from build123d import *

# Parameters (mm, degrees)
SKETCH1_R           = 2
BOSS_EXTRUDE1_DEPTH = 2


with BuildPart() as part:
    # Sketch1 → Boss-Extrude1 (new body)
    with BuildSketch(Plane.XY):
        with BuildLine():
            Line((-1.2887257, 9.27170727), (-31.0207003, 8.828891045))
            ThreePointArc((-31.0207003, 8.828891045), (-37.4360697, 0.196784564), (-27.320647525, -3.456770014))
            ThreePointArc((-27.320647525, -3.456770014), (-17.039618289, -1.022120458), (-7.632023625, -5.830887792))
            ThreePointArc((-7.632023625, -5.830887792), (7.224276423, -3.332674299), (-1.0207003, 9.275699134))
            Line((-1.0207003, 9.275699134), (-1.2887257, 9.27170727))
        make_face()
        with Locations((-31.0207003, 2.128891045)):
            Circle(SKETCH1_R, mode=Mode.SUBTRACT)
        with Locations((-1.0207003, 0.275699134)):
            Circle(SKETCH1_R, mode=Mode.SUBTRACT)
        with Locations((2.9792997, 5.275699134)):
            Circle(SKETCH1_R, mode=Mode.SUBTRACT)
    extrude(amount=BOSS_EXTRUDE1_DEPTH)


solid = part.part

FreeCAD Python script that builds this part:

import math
import FreeCAD as App
import Part
import Sketcher

doc = App.newDocument("Part")
body = doc.addObject("PartDesign::Body", "Body")

sketch1 = body.newObject("Sketcher::SketchObject", "Sketch")
sketch1.AttachmentSupport = (doc.getObject("XY_Plane"), [""])
sketch1.MapMode = "FlatFace"
sketch1.addGeometry([
    Part.LineSegment(App.Vector(-1.29, 9.27, 0), App.Vector(-31.02, 8.83, 0)),
    Part.ArcOfCircle(Part.Circle(App.Vector(-31.02, 2.13, 0), App.Vector(0, 0, 1), 6.7), math.radians(90), math.radians(304)),
    Part.ArcOfCircle(Part.Circle(App.Vector(-18.87, -16.21, 0), App.Vector(0, 0, 1), 15.3), math.radians(43), math.radians(124)),
    Part.ArcOfCircle(Part.Circle(App.Vector(-1.02, 0.28, 0), App.Vector(0, 0, 1), 9), math.radians(-137), math.radians(90)),
    Part.LineSegment(App.Vector(-1.02, 9.28, 0), App.Vector(-1.29, 9.27, 0)),
    Part.Circle(App.Vector(-31.02, 2.13, 0), App.Vector(0, 0, 1), 2),
    Part.Circle(App.Vector(-1.02, 0.28, 0), App.Vector(0, 0, 1), 2),
    Part.Circle(App.Vector(2.98, 5.28, 0), App.Vector(0, 0, 1), 2),
], False)
sketch1.addConstraint([
    Sketcher.Constraint("Coincident", 0, 2, 1, 1),
    Sketcher.Constraint("Tangent", 1, 2, 2, 2),
    Sketcher.Constraint("Tangent", 2, 1, 3, 1),
    Sketcher.Constraint("Coincident", 3, 2, 4, 1),
    Sketcher.Constraint("Coincident", 4, 2, 0, 1),
    Sketcher.Constraint("Coincident", 5, 3, 1, 3),
    Sketcher.Constraint("Coincident", 6, 3, 3, 3),
    Sketcher.Constraint("Equal", 5, 6),
    Sketcher.Constraint("Equal", 6, 7),
    Sketcher.Constraint("Parallel", 0, 4),
    Sketcher.Constraint("Vertical", 5, 3, 0, 2),
    Sketcher.Constraint("Vertical", 6, 3, 3, 2),
    Sketcher.Constraint("Diameter", 5, 4.0),
    Sketcher.Constraint("Radius", 3, 9.0),
    Sketcher.Constraint("Radius", 1, 6.7),
    Sketcher.Constraint("Radius", 2, 15.3),
    Sketcher.Constraint("DistanceX", 1, 3, 3, 3, 30.0),
    Sketcher.Constraint("DistanceX", 3, 3, 7, 3, 4.0),
    Sketcher.Constraint("DistanceY", 3, 3, 7, 3, 5.0),
    Sketcher.Constraint("DistanceX", 1, 3, -1, 1, 31.0207),
    Sketcher.Constraint("DistanceY", -1, 1, 3, 3, 0.275699),
    Sketcher.Constraint("Distance", 0, 29.735272),
    Sketcher.Constraint("DistanceY", -1, 1, 1, 3, 2.128891),
])
pad1 = body.newObject("PartDesign::Pad", "Pad")
pad1.Profile = sketch1
pad1.Length = 2

doc.recompute()
